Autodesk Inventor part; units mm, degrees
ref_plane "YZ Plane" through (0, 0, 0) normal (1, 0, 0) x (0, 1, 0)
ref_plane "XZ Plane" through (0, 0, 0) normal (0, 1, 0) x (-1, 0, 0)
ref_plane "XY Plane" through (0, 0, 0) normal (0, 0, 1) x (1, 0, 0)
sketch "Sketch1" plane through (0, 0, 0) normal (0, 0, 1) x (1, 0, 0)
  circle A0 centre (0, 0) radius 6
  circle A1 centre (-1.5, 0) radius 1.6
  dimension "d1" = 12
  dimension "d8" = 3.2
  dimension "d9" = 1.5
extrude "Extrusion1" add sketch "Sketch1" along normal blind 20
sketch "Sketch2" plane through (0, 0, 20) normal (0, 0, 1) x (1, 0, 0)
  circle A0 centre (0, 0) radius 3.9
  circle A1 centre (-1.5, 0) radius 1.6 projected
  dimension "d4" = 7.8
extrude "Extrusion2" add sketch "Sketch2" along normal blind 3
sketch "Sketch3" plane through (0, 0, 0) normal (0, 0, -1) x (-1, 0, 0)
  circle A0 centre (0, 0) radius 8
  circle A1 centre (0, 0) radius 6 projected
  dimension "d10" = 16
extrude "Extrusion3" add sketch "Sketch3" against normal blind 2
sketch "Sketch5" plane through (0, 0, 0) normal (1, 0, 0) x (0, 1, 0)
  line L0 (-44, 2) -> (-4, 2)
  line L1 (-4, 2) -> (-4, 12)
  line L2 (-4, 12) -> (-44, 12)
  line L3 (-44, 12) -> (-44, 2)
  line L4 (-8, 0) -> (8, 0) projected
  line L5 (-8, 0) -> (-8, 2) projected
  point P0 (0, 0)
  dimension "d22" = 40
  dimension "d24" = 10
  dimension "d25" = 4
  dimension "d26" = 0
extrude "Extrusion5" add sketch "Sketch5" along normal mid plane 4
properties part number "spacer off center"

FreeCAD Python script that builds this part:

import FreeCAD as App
import Part
import Sketcher

V = App.Vector

doc = App.newDocument("Part")
body = doc.addObject("PartDesign::Body", "Body")

# Sketch on XY plane
sketch1 = doc.addObject("Sketcher::SketchObject", "Sketch")
body.addObject(sketch1)
sketch1.AttachmentSupport = (doc.XY_Plane, [""])
sketch1.MapMode = "FlatFace"
sketch1.addGeometry([
    Part.Circle(V(0, 0, 0), V(0, 0, 1), 6),
    Part.Circle(V(-1.5, 0, 0), V(0, 0, 1), 1.6),
], False)
sketch1.addConstraint([
    Sketcher.Constraint("Coincident", 0, 3, -1, 1),
    Sketcher.Constraint("PointOnObject", 1, 3, -1),
    Sketcher.Constraint("Diameter", 0, 12.0),
    Sketcher.Constraint("Diameter", 1, 3.2),
    Sketcher.Constraint("DistanceX", 1, 3, -1, 1, 1.5),
])
pad1 = doc.addObject("PartDesign::Pad", "Pad")
body.addObject(pad1)
pad1.Profile = sketch1
pad1.Length = 20

# Sketch on XY plane
sketch2 = doc.addObject("Sketcher::SketchObject", "Sketch001")
body.addObject(sketch2)
sketch2.AttachmentSupport = (doc.XY_Plane, [""])
sketch2.MapMode = "FlatFace"
sketch2.AttachmentOffset = App.Placement(V(0, 0, 20), App.Rotation())
sketch2.addGeometry([
    Part.Circle(V(0, 0, 0), V(0, 0, 1), 3.9),
    Part.Circle(V(-1.5, 0, 0), V(0, 0, 1), 1.6),
], False)
sketch2.addConstraint([
    Sketcher.Constraint("Coincident", 0, 3, -1, 1),
    Sketcher.Constraint("PointOnObject", 1, 3, -1),
    Sketcher.Constraint("Diameter", 0, 7.8),
    Sketcher.Constraint("Diameter", 1, 3.2),
    Sketcher.Constraint("DistanceX", 1, 3, -1, 1, 1.5),
])
pad2 = doc.addObject("PartDesign::Pad", "Pad001")
body.addObject(pad2)
pad2.Profile = sketch2
pad2.Length = 3

# Sketch on XY plane
sketch3 = doc.addObject("Sketcher::SketchObject", "Sketch002")
body.addObject(sketch3)
sketch3.AttachmentSupport = (doc.XY_Plane, [""])
sketch3.MapMode = "FlatFace"
sketch3.addGeometry([
    Part.Circle(V(0, 0, 0), V(0, 0, 1), 8),
    Part.Circle(V(0, 0, 0), V(0, 0, 1), 6),
], False)
sketch3.addConstraint([
    Sketcher.Constraint("Coincident", 0, 3, -1, 1),
    Sketcher.Constraint("Coincident", 1, 3, -1, 1),
    Sketcher.Constraint("Diameter", 0, 16.0),
    Sketcher.Constraint("Diameter", 1, 12.0),
])
pad3 = doc.addObject("PartDesign::Pad", "Pad002")
body.addObject(pad3)
pad3.Profile = sketch3
pad3.Length = 2

# Sketch on YZ plane
sketch4 = doc.addObject("Sketcher::SketchObject", "Sketch003")
body.addObject(sketch4)
sketch4.AttachmentSupport = (doc.YZ_Plane, [""])
sketch4.MapMode = "FlatFace"
sketch4.addGeometry([
    Part.LineSegment(V(-44, 12, 0), V(-44, 2, 0)),
    Part.LineSegment(V(-44, 2, 0), V(-4, 2, 0)),
    Part.LineSegment(V(-4, 2, 0), V(-4, 12, 0)),
    Part.LineSegment(V(-4, 12, 0), V(-44, 12, 0)),
], False)
sketch4.addConstraint([
    Sketcher.Constraint("Coincident", 0, 2, 1, 1),
    Sketcher.Constraint("Coincident", 1, 2, 2, 1),
    Sketcher.Constraint("Coincident", 2, 2, 3, 1),
    Sketcher.Constraint("Coincident", 3, 2, 0, 1),
    Sketcher.Constraint("Vertical", 0),
    Sketcher.Constraint("Horizontal", 1),
    Sketcher.Constraint("Vertical", 2),
    Sketcher.Constraint("Horizontal", 3),
    Sketcher.Constraint("DistanceX", 1, 1, 1, 2, 40.0),
    Sketcher.Constraint("DistanceY", 0, 2, 0, 1, 10.0),
    Sketcher.Constraint("DistanceX", 1, 2, -1, 1, 4.0),
    Sketcher.Constraint("DistanceY", -1, 1, 0, 2, 2.0),
])
pad4 = doc.addObject("PartDesign::Pad", "Pad003")
body.addObject(pad4)
pad4.Profile = sketch4
pad4.Length = 4
pad4.Midplane = True

doc.recompute()
